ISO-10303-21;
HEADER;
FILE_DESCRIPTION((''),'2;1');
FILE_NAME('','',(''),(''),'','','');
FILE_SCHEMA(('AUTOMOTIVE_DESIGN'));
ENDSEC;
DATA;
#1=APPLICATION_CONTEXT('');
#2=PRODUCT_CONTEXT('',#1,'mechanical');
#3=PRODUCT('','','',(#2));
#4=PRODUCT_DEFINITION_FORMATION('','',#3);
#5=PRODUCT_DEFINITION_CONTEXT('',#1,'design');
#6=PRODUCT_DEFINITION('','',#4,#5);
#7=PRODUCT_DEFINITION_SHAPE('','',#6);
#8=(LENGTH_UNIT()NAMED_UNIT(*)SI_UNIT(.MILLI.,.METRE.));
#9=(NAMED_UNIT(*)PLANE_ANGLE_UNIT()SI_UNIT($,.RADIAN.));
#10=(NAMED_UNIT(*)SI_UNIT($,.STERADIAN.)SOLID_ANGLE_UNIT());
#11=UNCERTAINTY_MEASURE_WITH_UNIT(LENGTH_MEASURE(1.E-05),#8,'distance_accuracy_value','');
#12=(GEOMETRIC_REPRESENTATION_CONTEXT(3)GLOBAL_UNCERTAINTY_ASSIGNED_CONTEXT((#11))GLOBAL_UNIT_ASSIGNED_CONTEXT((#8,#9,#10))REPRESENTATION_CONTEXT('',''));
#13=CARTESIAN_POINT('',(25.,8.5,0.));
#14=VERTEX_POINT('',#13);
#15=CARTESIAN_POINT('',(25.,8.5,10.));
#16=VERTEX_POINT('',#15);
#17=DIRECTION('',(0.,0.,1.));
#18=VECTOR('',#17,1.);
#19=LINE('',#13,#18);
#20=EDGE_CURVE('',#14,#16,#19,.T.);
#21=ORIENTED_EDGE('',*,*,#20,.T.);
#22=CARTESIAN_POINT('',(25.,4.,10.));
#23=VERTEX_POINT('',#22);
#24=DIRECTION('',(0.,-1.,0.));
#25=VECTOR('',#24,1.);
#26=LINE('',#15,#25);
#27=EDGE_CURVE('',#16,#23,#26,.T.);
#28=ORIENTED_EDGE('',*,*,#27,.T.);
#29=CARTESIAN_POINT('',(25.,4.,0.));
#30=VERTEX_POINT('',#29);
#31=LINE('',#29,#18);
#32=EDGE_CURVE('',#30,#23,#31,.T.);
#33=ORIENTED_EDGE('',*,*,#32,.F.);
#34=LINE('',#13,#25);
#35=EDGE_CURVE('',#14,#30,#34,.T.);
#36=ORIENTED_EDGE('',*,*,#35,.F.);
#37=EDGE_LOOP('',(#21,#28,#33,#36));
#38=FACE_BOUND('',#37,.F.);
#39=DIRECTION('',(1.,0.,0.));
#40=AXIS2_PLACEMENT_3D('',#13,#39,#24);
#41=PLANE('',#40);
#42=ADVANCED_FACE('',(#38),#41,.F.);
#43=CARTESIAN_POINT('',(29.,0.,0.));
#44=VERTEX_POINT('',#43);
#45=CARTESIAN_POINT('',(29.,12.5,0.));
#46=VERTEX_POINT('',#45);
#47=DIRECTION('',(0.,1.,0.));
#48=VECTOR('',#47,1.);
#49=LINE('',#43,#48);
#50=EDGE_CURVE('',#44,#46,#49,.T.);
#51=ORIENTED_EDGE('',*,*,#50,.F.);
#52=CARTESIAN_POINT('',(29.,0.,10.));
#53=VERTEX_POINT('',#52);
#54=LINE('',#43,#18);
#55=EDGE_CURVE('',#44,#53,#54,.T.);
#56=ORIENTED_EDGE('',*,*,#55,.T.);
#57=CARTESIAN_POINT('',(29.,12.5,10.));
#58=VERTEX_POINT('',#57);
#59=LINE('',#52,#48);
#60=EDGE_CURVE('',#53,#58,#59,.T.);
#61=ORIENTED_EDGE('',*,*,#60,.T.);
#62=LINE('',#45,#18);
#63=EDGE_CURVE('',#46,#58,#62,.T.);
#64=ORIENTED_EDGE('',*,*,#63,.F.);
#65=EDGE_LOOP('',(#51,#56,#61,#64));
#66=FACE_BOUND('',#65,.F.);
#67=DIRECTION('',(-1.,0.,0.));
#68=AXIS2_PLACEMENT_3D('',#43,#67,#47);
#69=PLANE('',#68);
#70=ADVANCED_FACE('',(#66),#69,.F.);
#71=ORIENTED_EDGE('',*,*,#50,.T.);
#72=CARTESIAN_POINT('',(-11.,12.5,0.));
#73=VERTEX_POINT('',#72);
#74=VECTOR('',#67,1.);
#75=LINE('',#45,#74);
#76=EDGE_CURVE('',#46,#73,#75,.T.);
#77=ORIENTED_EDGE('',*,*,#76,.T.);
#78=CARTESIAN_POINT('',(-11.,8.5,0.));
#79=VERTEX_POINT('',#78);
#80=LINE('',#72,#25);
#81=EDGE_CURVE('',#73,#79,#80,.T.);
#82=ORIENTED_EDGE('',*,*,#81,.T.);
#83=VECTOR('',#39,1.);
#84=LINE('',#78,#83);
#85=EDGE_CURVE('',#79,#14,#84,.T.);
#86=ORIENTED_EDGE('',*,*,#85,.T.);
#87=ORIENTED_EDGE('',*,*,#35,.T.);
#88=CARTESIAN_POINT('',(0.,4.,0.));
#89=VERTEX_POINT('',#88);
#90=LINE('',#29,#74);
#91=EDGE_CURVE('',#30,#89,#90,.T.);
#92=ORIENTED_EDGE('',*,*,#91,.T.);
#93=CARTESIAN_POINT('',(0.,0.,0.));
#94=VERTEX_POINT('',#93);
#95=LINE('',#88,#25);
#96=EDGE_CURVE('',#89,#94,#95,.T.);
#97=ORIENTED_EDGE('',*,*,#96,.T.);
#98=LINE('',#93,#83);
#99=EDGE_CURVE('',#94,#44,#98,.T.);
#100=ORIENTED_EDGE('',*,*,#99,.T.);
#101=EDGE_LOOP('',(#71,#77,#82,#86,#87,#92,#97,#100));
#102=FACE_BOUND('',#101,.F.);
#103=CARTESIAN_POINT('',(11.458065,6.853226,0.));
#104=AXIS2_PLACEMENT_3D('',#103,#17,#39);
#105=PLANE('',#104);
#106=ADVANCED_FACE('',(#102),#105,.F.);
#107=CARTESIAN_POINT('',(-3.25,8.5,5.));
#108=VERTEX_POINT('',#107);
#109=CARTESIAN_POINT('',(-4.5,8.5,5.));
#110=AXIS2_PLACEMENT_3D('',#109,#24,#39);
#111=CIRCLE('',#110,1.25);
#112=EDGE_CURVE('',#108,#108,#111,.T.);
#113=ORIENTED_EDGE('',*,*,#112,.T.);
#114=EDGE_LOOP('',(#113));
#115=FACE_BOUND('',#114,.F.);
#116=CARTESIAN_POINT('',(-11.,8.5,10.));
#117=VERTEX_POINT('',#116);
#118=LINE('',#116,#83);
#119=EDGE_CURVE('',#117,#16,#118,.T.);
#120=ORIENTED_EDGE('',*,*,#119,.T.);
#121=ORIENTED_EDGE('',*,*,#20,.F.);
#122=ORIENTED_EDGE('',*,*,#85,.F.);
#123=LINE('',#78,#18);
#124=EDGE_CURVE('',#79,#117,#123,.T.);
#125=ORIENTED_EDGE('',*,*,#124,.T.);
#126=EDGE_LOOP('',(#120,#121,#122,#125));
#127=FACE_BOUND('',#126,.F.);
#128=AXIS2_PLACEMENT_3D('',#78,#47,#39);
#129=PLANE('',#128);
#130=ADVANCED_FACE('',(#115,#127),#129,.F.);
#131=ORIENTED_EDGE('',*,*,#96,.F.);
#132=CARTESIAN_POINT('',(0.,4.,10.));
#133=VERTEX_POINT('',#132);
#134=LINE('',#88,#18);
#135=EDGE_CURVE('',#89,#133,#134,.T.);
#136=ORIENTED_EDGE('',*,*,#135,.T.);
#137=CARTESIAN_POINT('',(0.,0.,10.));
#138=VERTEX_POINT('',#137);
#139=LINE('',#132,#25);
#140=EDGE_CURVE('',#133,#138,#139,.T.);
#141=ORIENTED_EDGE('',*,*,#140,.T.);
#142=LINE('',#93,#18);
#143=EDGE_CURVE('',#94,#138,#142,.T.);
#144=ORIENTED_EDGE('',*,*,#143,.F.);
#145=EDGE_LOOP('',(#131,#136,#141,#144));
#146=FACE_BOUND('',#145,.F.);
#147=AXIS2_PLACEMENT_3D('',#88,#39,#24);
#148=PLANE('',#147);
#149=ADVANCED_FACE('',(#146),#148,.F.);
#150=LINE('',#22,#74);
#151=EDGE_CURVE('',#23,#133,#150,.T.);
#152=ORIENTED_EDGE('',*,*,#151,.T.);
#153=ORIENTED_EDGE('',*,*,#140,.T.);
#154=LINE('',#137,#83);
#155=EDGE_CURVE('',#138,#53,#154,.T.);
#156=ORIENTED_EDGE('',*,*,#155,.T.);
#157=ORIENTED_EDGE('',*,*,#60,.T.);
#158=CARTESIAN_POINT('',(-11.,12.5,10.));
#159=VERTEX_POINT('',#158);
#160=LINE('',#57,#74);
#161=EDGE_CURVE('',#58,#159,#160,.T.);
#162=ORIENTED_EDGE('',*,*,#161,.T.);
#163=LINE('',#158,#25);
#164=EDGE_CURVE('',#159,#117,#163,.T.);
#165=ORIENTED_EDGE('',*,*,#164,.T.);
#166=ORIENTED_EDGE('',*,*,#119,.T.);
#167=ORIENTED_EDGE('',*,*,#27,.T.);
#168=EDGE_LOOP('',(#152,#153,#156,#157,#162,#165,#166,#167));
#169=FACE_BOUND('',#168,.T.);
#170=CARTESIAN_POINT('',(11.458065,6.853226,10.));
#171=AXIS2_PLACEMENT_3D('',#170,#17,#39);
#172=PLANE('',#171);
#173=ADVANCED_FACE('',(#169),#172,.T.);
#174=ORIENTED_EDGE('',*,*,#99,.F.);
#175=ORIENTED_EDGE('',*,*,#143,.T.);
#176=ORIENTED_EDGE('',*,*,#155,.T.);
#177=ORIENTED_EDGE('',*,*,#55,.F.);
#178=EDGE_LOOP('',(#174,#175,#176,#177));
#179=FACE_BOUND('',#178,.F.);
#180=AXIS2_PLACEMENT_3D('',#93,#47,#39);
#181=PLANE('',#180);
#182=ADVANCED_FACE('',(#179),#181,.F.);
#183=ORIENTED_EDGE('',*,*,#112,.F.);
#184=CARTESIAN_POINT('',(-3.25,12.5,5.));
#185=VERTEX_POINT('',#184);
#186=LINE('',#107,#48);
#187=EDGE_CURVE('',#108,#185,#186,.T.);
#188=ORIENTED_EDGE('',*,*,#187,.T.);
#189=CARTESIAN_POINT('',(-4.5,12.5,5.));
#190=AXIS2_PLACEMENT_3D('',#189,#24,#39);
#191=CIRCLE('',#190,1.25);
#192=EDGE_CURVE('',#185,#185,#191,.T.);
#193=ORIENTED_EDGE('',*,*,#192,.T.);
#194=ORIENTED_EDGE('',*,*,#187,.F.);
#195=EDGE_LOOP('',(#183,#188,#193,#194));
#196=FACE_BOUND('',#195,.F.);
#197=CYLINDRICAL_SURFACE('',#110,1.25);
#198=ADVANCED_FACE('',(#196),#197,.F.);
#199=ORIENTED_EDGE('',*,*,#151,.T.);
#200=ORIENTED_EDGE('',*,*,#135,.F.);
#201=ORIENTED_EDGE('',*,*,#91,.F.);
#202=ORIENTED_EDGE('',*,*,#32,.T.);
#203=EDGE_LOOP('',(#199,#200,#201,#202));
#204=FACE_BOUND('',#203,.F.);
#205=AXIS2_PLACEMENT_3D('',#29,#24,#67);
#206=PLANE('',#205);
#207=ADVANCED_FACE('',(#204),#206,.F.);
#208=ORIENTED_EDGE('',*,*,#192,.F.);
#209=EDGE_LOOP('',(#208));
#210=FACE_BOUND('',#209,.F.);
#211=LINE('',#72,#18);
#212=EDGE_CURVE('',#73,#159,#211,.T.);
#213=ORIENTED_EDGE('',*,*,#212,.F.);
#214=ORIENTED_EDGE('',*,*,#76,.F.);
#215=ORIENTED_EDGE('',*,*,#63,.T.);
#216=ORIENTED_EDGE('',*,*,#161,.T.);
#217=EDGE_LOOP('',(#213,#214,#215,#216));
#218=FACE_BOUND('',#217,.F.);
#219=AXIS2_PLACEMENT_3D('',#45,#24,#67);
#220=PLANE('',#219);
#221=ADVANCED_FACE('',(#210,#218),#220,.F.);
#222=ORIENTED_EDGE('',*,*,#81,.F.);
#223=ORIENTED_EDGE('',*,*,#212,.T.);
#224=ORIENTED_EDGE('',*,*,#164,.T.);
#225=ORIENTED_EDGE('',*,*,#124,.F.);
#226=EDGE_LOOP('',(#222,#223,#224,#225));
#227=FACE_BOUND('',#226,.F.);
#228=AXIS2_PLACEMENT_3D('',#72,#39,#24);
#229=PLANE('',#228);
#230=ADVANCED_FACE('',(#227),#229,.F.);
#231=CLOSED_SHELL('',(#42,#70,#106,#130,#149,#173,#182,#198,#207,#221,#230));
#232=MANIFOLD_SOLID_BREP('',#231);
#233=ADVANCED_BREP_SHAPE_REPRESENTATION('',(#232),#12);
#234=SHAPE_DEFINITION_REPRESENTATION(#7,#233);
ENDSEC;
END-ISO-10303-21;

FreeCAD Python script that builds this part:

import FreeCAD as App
import Part
import Sketcher


def add_polygon(sketch, points):
    """Adds a closed chain of lines whose ends are joined by coincident constraints."""
    first, n = sketch.GeometryCount, len(points)
    for a, b in zip(points, points[1:] + points[:1]):
        sketch.addGeometry(Part.LineSegment(App.Vector(*a, 0), App.Vector(*b, 0)), False)
    for i in range(n):
        sketch.addConstraint(Sketcher.Constraint("Coincident", first + i, 2, first + (i + 1) % n, 1))

doc = App.newDocument("Part")
params = doc.addObject("Spreadsheet::Sheet", "Params")
for row, (alias, value) in enumerate([
    ("sketch1_width", "29 mm"),
    ("sketch1_width2", "40 mm"),
    ("sketch1_width3", "36 mm"),
    ("sketch1_height", "4 mm"),
    ("sketch1_height2", "12.5 mm"),
    ("pad1_length", "10 mm"),
    ("sketch2_diameter", "2.5 mm"),
    ("pocket1_length", "25 mm"),
], start=1):
    params.set(f"A{row}", alias)
    params.set(f"B{row}", "=" + value)
    params.setAlias(f"B{row}", alias)

body = doc.addObject("PartDesign::Body", "Body")

sketch1 = body.newObject("Sketcher::SketchObject", "Sketch")
sketch1.AttachmentSupport = (doc.getObject("XY_Plane"), [""])
sketch1.MapMode = "FlatFace"
add_polygon(sketch1, [(0, 4), (0, 0), (29, 0), (29, 12.5), (-11, 12.5), (-11, 8.5), (25, 8.5), (25, 4)])
sketch1.addConstraint([
    Sketcher.Constraint("Vertical", 0),
    Sketcher.Constraint("Horizontal", 1),
    Sketcher.Constraint("Vertical", 2),
    Sketcher.Constraint("Horizontal", 3),
    Sketcher.Constraint("Vertical", 4),
    Sketcher.Constraint("Horizontal", 5),
    Sketcher.Constraint("Vertical", 6),
    Sketcher.Constraint("Horizontal", 7),
    Sketcher.Constraint("Coincident", 0, 2, -1, 1),
    Sketcher.Constraint("Equal", 0, 4),
    Sketcher.Constraint("DistanceX", 1, 1, 1, 2, 29.0),
    Sketcher.Constraint("DistanceX", 3, 2, 3, 1, 40.0),
    Sketcher.Constraint("DistanceX", 5, 1, 5, 2, 36.0),
    Sketcher.Constraint("DistanceY", 0, 2, 0, 1, 4.0),
    Sketcher.Constraint("DistanceY", 2, 1, 2, 2, 12.5),
])
sketch1.setExpression("Constraints[18]", "Params.sketch1_width")
sketch1.setExpression("Constraints[19]", "Params.sketch1_width2")
sketch1.setExpression("Constraints[20]", "Params.sketch1_width3")
sketch1.setExpression("Constraints[21]", "Params.sketch1_height")
sketch1.setExpression("Constraints[22]", "Params.sketch1_height2")
pad1 = body.newObject("PartDesign::Pad", "Pad")
pad1.Profile = sketch1
pad1.setExpression("Length", "Params.pad1_length")

sketch2 = body.newObject("Sketcher::SketchObject", "Sketch001")
sketch2.AttachmentSupport = (doc.getObject("XZ_Plane"), [""])
sketch2.MapMode = "FlatFace"
sketch2.AttachmentOffset = App.Placement(App.Vector(0, 0, -8.5), App.Rotation())
sketch2.addGeometry(Part.Circle(App.Vector(-4.5, 5, 0), App.Vector(0, 0, 1), 1.2), False)
sketch2.addConstraint([
    Sketcher.Constraint("Diameter", 0, 2.5),
    Sketcher.Constraint("DistanceY", -1, 1, 0, 3, 5.0),
    Sketcher.Constraint("DistanceX", 0, 3, -1, 1, 4.5),
])
sketch2.setExpression("Constraints[0]", "Params.sketch2_diameter")
pocket1 = body.newObject("PartDesign::Pocket", "Pocket")
pocket1.Profile = sketch2
pocket1.setExpression("Length", "Params.pocket1_length")

doc.recompute()
